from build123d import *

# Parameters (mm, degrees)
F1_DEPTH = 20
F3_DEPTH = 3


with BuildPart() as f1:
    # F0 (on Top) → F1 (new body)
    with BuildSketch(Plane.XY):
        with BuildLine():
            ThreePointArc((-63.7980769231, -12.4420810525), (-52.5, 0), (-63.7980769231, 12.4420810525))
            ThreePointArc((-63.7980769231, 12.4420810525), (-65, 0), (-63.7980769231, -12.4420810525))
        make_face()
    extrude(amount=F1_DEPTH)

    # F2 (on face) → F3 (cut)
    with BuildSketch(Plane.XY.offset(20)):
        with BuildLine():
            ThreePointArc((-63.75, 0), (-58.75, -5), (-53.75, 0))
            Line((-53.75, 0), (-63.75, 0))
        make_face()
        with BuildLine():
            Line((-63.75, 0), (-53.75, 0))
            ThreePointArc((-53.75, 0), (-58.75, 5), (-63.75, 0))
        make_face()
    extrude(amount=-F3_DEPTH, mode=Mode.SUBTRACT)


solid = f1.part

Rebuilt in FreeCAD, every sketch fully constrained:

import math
import FreeCAD as App
import Part
import Sketcher

doc = App.newDocument("Part")
body = doc.addObject("PartDesign::Body", "Body")

sketch1 = doc.addObject("Sketcher::SketchObject", "Sketch")
body.addObject(sketch1)
sketch1.AttachmentSupport = (doc.XY_Plane, [""])
sketch1.MapMode = "FlatFace"
sketch1.addGeometry(Part.ArcOfCircle(Part.Circle(App.Vector(-65, 0, 0), App.Vector(0, 0, 1), 12), math.radians(-84), math.radians(84)), False)
sketch1.addGeometry(Part.ArcOfCircle(Part.Circle(App.Vector(0, 0, 0), App.Vector(0, 0, 1), 65), math.radians(169), math.radians(191)), False)
sketch1.addConstraint(Sketcher.Constraint("Coincident", 0, 1, 1, 2))
sketch1.addConstraint(Sketcher.Constraint("Coincident", 1, 1, 0, 2))
sketch1.addConstraint(Sketcher.Constraint("Coincident", 1, 3, -1, 1))
sketch1.addConstraint(Sketcher.Constraint("PointOnObject", 0, 3, -1))
sketch1.addConstraint(Sketcher.Constraint("Radius", 1, 65.0))
sketch1.addConstraint(Sketcher.Constraint("Radius", 0, 12.5))
sketch1.addConstraint(Sketcher.Constraint("DistanceX", 0, 3, -1, 1, 65.0))
pad1 = doc.addObject("PartDesign::Pad", "Pad")
body.addObject(pad1)
pad1.Profile = sketch1
pad1.Length = 20

sketch2 = doc.addObject("Sketcher::SketchObject", "Sketch001")
body.addObject(sketch2)
sketch2.AttachmentSupport = (doc.XY_Plane, [""])
sketch2.MapMode = "FlatFace"
sketch2.AttachmentOffset = App.Placement(App.Vector(0, 0, 20), App.Rotation())
sketch2.addGeometry(Part.Circle(App.Vector(-59, 0, 0), App.Vector(0, 0, 1), 5), False)
sketch2.addConstraint(Sketcher.Constraint("PointOnObject", 0, 3, -1))
sketch2.addConstraint(Sketcher.Constraint("Diameter", 0, 10.0))
sketch2.addConstraint(Sketcher.Constraint("DistanceX", 0, 3, -1, 1, 58.75))
pocket1 = doc.addObject("PartDesign::Pocket", "Pocket")
body.addObject(pocket1)
pocket1.Profile = sketch2
pocket1.Length = 3

doc.recompute()
